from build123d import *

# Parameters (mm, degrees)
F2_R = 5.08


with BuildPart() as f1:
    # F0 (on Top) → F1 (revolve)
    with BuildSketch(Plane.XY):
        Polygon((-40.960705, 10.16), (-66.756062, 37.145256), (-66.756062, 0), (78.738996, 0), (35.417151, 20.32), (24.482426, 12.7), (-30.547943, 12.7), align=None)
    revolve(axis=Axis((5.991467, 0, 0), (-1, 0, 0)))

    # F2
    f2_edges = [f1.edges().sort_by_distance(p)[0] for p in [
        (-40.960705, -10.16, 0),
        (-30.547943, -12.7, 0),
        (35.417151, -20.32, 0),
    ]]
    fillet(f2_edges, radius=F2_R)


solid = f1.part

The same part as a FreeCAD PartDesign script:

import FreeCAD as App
import Part
import Sketcher
from FreeCAD import Vector
Q = App.Units.Quantity


def edges_at(feature, points):
    """Names of the edges that pass closest to the given points."""
    edges = feature.Shape.Edges
    near = lambda p: min(range(len(edges)), key=lambda i: edges[i].distToShape(Part.Vertex(*p))[0])
    return sorted({f"Edge{near(p) + 1}" for p in points})

doc = App.newDocument("Part")
body = doc.addObject("PartDesign::Body", "Body")

sketch1 = body.newObject("Sketcher::SketchObject", "Sketch")
sketch1.AttachmentSupport = (doc.getObject("XY_Plane"), [""])
sketch1.MapMode = "FlatFace"
sketch1.addGeometry([
    Part.LineSegment(Vector(-40.960705, 10.16, 0), Vector(-66.756062, 37.145256, 0)),
    Part.LineSegment(Vector(-66.756062, 37.145256, 0), Vector(-66.756062, 0, 0)),
    Part.LineSegment(Vector(-66.756062, 0, 0), Vector(78.738996, 0, 0)),
    Part.LineSegment(Vector(78.738996, 0, 0), Vector(35.417151, 20.32, 0)),
    Part.LineSegment(Vector(35.417151, 20.32, 0), Vector(24.482426, 12.7, 0)),
    Part.LineSegment(Vector(24.482426, 12.7, 0), Vector(-30.547943, 12.7, 0)),
    Part.LineSegment(Vector(-30.547943, 12.7, 0), Vector(-40.960705, 10.16, 0)),
], False)
sketch1.addConstraint([
    Sketcher.Constraint("Coincident", 0, 2, 1, 1),
    Sketcher.Constraint("Coincident", 1, 2, 2, 1),
    Sketcher.Constraint("Coincident", 2, 2, 3, 1),
    Sketcher.Constraint("Coincident", 3, 2, 4, 1),
    Sketcher.Constraint("Coincident", 4, 2, 5, 1),
    Sketcher.Constraint("Coincident", 5, 2, 6, 1),
    Sketcher.Constraint("Coincident", 6, 2, 0, 1),
    Sketcher.Constraint("Vertical", 1),
    Sketcher.Constraint("Horizontal", 2),
    Sketcher.Constraint("Horizontal", 5),
    Sketcher.Constraint("PointOnObject", 1, 2, -1),
    Sketcher.Constraint("DistanceY", -1, 1, 3, 2, Q("0.8 in")),
    Sketcher.Constraint("DistanceY", -1, 1, 4, 2, Q("0.5 in")),
    Sketcher.Constraint("DistanceY", -1, 1, 6, 2, Q("0.4 in")),
    Sketcher.Constraint("DistanceX", 2, 1, 2, 2, Q("145.495058 mm")),
    Sketcher.Constraint("DistanceX", 5, 2, 5, 1, Q("55.030369 mm")),
    Sketcher.Constraint("Distance", 3, Q("47.850649 mm")),
    Sketcher.Constraint("Distance", 4, Q("13.327888 mm")),
    Sketcher.Constraint("Distance", 6, Q("10.718079 mm")),
    Sketcher.Constraint("DistanceY", 1, 2, 1, 1, Q("37.145256 mm")),
    Sketcher.Constraint("DistanceX", 0, 2, -1, 1, Q("66.756062 mm")),
])
revolution = body.newObject("PartDesign::Revolution", "Revolution")
revolution.Profile = sketch1
revolution.ReferenceAxis = (sketch1, ["H_Axis"])
revolution.Angle = 360
doc.recompute()

fillet = body.newObject("PartDesign::Fillet", "Fillet")
fillet.Base = (revolution, edges_at(revolution, [(-40.961, -10.16, 0), (-30.548, -12.7, 0), (35.417, -20.32, 0)]))
fillet.Radius = Q("0.2 in")

doc.recompute()
